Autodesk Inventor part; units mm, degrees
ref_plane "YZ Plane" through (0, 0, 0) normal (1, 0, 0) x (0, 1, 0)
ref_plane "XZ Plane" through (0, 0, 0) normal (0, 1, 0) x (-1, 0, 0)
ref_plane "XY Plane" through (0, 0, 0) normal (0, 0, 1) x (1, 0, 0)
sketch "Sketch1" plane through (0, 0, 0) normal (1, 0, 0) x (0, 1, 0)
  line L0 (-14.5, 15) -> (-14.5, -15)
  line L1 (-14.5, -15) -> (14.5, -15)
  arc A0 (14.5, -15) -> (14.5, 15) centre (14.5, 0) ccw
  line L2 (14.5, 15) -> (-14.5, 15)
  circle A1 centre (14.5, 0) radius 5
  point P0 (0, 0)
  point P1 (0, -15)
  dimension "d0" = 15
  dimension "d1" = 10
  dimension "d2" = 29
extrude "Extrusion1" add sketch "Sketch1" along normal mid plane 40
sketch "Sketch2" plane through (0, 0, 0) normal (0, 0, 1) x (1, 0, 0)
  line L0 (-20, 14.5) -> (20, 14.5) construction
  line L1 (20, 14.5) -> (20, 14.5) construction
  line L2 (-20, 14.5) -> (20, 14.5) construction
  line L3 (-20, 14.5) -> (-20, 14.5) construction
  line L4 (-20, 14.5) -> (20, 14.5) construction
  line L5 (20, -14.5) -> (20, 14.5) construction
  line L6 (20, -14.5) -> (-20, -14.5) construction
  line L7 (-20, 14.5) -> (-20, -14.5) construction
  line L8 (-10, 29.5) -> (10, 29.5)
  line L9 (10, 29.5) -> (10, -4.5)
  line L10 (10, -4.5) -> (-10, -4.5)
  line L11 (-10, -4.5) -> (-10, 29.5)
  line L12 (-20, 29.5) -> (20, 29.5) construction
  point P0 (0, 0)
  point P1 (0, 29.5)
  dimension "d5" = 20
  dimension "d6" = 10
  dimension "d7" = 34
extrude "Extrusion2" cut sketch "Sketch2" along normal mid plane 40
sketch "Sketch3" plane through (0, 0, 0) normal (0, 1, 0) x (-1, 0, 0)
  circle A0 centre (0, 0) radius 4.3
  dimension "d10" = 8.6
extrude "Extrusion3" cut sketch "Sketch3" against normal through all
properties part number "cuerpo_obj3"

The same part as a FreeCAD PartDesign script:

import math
import FreeCAD as App
import Part
import Sketcher

doc = App.newDocument("Part")
params = doc.addObject("Spreadsheet::Sheet", "Params")
for row, (alias, value) in enumerate([
    ("sketch1_diameter", "10 mm"),
    ("sketch1_radius", "15 mm"),
    ("sketch1_width", "29 mm"),
    ("pad1_length", "40 mm"),
    ("sketch2_width", "20 mm"),
    ("sketch2_height", "34 mm"),
    ("pocket1_length", "40 mm"),
    ("sketch3_diameter", "8.6 mm"),
], start=1):
    params.set(f"A{row}", alias)
    params.set(f"B{row}", "=" + value)
    params.setAlias(f"B{row}", alias)

body = doc.addObject("PartDesign::Body", "Body")

# Sketch on YZ plane
sketch1 = body.newObject("Sketcher::SketchObject", "Sketch")
sketch1.AttachmentSupport = (doc.getObject("YZ_Plane"), [""])
sketch1.MapMode = "FlatFace"
sketch1.addGeometry([
    Part.LineSegment(App.Vector(14.5, 15, 0), App.Vector(-14.5, 15, 0)),  # 0
    Part.LineSegment(App.Vector(-14.5, 15, 0), App.Vector(-14.5, -15, 0)),  # 1
    Part.LineSegment(App.Vector(-14.5, -15, 0), App.Vector(14.5, -15, 0)),  # 2
    Part.ArcOfCircle(Part.Circle(App.Vector(14.5, 0, 0), App.Vector(0, 0, 1), 15), math.radians(-90), math.radians(90)),  # 3
    Part.Circle(App.Vector(14.5, 0, 0), App.Vector(0, 0, 1), 5),  # 4
], False)
sketch1.addConstraint([
    Sketcher.Constraint("Coincident", 0, 2, 1, 1),
    Sketcher.Constraint("Coincident", 1, 2, 2, 1),
    Sketcher.Constraint("Tangent", 2, 2, 3, 1),
    Sketcher.Constraint("Tangent", 3, 2, 0, 1),
    Sketcher.Constraint("Horizontal", 0),
    Sketcher.Constraint("Vertical", 1),
    Sketcher.Constraint("Horizontal", 2),
    Sketcher.Constraint("Coincident", 4, 3, 3, 3),
    Sketcher.Constraint("Symmetric", 0, 2, 2, 2, -1, 1),
    Sketcher.Constraint("Diameter", 4, 10.0),
    Sketcher.Constraint("Radius", 3, 15.0),
    Sketcher.Constraint("DistanceX", 0, 2, 0, 1, 29.0),
])
sketch1.setExpression("Constraints[9]", "Params.sketch1_diameter")
sketch1.setExpression("Constraints[10]", "Params.sketch1_radius")
sketch1.setExpression("Constraints[11]", "Params.sketch1_width")
pad1 = body.newObject("PartDesign::Pad", "Pad")
pad1.Profile = sketch1
pad1.setExpression("Length", "Params.pad1_length")
pad1.Midplane = True

# Sketch on XY plane
sketch2 = body.newObject("Sketcher::SketchObject", "Sketch001")
sketch2.AttachmentSupport = (doc.getObject("XY_Plane"), [""])
sketch2.MapMode = "FlatFace"
sketch2.addGeometry([
    Part.LineSegment(App.Vector(10, 29.5, 0), App.Vector(-10, 29.5, 0)),
    Part.LineSegment(App.Vector(-10, 29.5, 0), App.Vector(-10, -4.5, 0)),
    Part.LineSegment(App.Vector(-10, -4.5, 0), App.Vector(10, -4.5, 0)),
    Part.LineSegment(App.Vector(10, -4.5, 0), App.Vector(10, 29.5, 0)),
], False)
sketch2.addConstraint([
    Sketcher.Constraint("Coincident", 0, 2, 1, 1),
    Sketcher.Constraint("Coincident", 1, 2, 2, 1),
    Sketcher.Constraint("Coincident", 2, 2, 3, 1),
    Sketcher.Constraint("Coincident", 3, 2, 0, 1),
    Sketcher.Constraint("Horizontal", 0),
    Sketcher.Constraint("Vertical", 1),
    Sketcher.Constraint("Horizontal", 2),
    Sketcher.Constraint("Vertical", 3),
    Sketcher.Constraint("DistanceX", 0, 2, 0, 1, 20.0),
    Sketcher.Constraint("DistanceY", 1, 2, 1, 1, 34.0),
    Sketcher.Constraint("DistanceX", 0, 2, -1, 1, 10.0),
    Sketcher.Constraint("DistanceY", -1, 1, 0, 2, 29.5),
])
sketch2.setExpression("Constraints[8]", "Params.sketch2_width")
sketch2.setExpression("Constraints[9]", "Params.sketch2_height")
pocket1 = body.newObject("PartDesign::Pocket", "Pocket")
pocket1.Profile = sketch2
pocket1.setExpression("Length", "Params.pocket1_length")
pocket1.Midplane = True

# Sketch on XZ plane
sketch3 = body.newObject("Sketcher::SketchObject", "Sketch002")
sketch3.AttachmentSupport = (doc.getObject("XZ_Plane"), [""])
sketch3.MapMode = "FlatFace"
sketch3.addGeometry(Part.Circle(App.Vector(0, 0, 0), App.Vector(0, 0, 1), 4.3), False)
sketch3.addConstraint([
    Sketcher.Constraint("Coincident", 0, 3, -1, 1),
    Sketcher.Constraint("Diameter", 0, 8.6),
])
sketch3.setExpression("Constraints[1]", "Params.sketch3_diameter")
pocket2 = body.newObject("PartDesign::Pocket", "Pocket001")
pocket2.Profile = sketch3
pocket2.Type = "ThroughAll"
pocket2.Reversed = True

doc.recompute()
